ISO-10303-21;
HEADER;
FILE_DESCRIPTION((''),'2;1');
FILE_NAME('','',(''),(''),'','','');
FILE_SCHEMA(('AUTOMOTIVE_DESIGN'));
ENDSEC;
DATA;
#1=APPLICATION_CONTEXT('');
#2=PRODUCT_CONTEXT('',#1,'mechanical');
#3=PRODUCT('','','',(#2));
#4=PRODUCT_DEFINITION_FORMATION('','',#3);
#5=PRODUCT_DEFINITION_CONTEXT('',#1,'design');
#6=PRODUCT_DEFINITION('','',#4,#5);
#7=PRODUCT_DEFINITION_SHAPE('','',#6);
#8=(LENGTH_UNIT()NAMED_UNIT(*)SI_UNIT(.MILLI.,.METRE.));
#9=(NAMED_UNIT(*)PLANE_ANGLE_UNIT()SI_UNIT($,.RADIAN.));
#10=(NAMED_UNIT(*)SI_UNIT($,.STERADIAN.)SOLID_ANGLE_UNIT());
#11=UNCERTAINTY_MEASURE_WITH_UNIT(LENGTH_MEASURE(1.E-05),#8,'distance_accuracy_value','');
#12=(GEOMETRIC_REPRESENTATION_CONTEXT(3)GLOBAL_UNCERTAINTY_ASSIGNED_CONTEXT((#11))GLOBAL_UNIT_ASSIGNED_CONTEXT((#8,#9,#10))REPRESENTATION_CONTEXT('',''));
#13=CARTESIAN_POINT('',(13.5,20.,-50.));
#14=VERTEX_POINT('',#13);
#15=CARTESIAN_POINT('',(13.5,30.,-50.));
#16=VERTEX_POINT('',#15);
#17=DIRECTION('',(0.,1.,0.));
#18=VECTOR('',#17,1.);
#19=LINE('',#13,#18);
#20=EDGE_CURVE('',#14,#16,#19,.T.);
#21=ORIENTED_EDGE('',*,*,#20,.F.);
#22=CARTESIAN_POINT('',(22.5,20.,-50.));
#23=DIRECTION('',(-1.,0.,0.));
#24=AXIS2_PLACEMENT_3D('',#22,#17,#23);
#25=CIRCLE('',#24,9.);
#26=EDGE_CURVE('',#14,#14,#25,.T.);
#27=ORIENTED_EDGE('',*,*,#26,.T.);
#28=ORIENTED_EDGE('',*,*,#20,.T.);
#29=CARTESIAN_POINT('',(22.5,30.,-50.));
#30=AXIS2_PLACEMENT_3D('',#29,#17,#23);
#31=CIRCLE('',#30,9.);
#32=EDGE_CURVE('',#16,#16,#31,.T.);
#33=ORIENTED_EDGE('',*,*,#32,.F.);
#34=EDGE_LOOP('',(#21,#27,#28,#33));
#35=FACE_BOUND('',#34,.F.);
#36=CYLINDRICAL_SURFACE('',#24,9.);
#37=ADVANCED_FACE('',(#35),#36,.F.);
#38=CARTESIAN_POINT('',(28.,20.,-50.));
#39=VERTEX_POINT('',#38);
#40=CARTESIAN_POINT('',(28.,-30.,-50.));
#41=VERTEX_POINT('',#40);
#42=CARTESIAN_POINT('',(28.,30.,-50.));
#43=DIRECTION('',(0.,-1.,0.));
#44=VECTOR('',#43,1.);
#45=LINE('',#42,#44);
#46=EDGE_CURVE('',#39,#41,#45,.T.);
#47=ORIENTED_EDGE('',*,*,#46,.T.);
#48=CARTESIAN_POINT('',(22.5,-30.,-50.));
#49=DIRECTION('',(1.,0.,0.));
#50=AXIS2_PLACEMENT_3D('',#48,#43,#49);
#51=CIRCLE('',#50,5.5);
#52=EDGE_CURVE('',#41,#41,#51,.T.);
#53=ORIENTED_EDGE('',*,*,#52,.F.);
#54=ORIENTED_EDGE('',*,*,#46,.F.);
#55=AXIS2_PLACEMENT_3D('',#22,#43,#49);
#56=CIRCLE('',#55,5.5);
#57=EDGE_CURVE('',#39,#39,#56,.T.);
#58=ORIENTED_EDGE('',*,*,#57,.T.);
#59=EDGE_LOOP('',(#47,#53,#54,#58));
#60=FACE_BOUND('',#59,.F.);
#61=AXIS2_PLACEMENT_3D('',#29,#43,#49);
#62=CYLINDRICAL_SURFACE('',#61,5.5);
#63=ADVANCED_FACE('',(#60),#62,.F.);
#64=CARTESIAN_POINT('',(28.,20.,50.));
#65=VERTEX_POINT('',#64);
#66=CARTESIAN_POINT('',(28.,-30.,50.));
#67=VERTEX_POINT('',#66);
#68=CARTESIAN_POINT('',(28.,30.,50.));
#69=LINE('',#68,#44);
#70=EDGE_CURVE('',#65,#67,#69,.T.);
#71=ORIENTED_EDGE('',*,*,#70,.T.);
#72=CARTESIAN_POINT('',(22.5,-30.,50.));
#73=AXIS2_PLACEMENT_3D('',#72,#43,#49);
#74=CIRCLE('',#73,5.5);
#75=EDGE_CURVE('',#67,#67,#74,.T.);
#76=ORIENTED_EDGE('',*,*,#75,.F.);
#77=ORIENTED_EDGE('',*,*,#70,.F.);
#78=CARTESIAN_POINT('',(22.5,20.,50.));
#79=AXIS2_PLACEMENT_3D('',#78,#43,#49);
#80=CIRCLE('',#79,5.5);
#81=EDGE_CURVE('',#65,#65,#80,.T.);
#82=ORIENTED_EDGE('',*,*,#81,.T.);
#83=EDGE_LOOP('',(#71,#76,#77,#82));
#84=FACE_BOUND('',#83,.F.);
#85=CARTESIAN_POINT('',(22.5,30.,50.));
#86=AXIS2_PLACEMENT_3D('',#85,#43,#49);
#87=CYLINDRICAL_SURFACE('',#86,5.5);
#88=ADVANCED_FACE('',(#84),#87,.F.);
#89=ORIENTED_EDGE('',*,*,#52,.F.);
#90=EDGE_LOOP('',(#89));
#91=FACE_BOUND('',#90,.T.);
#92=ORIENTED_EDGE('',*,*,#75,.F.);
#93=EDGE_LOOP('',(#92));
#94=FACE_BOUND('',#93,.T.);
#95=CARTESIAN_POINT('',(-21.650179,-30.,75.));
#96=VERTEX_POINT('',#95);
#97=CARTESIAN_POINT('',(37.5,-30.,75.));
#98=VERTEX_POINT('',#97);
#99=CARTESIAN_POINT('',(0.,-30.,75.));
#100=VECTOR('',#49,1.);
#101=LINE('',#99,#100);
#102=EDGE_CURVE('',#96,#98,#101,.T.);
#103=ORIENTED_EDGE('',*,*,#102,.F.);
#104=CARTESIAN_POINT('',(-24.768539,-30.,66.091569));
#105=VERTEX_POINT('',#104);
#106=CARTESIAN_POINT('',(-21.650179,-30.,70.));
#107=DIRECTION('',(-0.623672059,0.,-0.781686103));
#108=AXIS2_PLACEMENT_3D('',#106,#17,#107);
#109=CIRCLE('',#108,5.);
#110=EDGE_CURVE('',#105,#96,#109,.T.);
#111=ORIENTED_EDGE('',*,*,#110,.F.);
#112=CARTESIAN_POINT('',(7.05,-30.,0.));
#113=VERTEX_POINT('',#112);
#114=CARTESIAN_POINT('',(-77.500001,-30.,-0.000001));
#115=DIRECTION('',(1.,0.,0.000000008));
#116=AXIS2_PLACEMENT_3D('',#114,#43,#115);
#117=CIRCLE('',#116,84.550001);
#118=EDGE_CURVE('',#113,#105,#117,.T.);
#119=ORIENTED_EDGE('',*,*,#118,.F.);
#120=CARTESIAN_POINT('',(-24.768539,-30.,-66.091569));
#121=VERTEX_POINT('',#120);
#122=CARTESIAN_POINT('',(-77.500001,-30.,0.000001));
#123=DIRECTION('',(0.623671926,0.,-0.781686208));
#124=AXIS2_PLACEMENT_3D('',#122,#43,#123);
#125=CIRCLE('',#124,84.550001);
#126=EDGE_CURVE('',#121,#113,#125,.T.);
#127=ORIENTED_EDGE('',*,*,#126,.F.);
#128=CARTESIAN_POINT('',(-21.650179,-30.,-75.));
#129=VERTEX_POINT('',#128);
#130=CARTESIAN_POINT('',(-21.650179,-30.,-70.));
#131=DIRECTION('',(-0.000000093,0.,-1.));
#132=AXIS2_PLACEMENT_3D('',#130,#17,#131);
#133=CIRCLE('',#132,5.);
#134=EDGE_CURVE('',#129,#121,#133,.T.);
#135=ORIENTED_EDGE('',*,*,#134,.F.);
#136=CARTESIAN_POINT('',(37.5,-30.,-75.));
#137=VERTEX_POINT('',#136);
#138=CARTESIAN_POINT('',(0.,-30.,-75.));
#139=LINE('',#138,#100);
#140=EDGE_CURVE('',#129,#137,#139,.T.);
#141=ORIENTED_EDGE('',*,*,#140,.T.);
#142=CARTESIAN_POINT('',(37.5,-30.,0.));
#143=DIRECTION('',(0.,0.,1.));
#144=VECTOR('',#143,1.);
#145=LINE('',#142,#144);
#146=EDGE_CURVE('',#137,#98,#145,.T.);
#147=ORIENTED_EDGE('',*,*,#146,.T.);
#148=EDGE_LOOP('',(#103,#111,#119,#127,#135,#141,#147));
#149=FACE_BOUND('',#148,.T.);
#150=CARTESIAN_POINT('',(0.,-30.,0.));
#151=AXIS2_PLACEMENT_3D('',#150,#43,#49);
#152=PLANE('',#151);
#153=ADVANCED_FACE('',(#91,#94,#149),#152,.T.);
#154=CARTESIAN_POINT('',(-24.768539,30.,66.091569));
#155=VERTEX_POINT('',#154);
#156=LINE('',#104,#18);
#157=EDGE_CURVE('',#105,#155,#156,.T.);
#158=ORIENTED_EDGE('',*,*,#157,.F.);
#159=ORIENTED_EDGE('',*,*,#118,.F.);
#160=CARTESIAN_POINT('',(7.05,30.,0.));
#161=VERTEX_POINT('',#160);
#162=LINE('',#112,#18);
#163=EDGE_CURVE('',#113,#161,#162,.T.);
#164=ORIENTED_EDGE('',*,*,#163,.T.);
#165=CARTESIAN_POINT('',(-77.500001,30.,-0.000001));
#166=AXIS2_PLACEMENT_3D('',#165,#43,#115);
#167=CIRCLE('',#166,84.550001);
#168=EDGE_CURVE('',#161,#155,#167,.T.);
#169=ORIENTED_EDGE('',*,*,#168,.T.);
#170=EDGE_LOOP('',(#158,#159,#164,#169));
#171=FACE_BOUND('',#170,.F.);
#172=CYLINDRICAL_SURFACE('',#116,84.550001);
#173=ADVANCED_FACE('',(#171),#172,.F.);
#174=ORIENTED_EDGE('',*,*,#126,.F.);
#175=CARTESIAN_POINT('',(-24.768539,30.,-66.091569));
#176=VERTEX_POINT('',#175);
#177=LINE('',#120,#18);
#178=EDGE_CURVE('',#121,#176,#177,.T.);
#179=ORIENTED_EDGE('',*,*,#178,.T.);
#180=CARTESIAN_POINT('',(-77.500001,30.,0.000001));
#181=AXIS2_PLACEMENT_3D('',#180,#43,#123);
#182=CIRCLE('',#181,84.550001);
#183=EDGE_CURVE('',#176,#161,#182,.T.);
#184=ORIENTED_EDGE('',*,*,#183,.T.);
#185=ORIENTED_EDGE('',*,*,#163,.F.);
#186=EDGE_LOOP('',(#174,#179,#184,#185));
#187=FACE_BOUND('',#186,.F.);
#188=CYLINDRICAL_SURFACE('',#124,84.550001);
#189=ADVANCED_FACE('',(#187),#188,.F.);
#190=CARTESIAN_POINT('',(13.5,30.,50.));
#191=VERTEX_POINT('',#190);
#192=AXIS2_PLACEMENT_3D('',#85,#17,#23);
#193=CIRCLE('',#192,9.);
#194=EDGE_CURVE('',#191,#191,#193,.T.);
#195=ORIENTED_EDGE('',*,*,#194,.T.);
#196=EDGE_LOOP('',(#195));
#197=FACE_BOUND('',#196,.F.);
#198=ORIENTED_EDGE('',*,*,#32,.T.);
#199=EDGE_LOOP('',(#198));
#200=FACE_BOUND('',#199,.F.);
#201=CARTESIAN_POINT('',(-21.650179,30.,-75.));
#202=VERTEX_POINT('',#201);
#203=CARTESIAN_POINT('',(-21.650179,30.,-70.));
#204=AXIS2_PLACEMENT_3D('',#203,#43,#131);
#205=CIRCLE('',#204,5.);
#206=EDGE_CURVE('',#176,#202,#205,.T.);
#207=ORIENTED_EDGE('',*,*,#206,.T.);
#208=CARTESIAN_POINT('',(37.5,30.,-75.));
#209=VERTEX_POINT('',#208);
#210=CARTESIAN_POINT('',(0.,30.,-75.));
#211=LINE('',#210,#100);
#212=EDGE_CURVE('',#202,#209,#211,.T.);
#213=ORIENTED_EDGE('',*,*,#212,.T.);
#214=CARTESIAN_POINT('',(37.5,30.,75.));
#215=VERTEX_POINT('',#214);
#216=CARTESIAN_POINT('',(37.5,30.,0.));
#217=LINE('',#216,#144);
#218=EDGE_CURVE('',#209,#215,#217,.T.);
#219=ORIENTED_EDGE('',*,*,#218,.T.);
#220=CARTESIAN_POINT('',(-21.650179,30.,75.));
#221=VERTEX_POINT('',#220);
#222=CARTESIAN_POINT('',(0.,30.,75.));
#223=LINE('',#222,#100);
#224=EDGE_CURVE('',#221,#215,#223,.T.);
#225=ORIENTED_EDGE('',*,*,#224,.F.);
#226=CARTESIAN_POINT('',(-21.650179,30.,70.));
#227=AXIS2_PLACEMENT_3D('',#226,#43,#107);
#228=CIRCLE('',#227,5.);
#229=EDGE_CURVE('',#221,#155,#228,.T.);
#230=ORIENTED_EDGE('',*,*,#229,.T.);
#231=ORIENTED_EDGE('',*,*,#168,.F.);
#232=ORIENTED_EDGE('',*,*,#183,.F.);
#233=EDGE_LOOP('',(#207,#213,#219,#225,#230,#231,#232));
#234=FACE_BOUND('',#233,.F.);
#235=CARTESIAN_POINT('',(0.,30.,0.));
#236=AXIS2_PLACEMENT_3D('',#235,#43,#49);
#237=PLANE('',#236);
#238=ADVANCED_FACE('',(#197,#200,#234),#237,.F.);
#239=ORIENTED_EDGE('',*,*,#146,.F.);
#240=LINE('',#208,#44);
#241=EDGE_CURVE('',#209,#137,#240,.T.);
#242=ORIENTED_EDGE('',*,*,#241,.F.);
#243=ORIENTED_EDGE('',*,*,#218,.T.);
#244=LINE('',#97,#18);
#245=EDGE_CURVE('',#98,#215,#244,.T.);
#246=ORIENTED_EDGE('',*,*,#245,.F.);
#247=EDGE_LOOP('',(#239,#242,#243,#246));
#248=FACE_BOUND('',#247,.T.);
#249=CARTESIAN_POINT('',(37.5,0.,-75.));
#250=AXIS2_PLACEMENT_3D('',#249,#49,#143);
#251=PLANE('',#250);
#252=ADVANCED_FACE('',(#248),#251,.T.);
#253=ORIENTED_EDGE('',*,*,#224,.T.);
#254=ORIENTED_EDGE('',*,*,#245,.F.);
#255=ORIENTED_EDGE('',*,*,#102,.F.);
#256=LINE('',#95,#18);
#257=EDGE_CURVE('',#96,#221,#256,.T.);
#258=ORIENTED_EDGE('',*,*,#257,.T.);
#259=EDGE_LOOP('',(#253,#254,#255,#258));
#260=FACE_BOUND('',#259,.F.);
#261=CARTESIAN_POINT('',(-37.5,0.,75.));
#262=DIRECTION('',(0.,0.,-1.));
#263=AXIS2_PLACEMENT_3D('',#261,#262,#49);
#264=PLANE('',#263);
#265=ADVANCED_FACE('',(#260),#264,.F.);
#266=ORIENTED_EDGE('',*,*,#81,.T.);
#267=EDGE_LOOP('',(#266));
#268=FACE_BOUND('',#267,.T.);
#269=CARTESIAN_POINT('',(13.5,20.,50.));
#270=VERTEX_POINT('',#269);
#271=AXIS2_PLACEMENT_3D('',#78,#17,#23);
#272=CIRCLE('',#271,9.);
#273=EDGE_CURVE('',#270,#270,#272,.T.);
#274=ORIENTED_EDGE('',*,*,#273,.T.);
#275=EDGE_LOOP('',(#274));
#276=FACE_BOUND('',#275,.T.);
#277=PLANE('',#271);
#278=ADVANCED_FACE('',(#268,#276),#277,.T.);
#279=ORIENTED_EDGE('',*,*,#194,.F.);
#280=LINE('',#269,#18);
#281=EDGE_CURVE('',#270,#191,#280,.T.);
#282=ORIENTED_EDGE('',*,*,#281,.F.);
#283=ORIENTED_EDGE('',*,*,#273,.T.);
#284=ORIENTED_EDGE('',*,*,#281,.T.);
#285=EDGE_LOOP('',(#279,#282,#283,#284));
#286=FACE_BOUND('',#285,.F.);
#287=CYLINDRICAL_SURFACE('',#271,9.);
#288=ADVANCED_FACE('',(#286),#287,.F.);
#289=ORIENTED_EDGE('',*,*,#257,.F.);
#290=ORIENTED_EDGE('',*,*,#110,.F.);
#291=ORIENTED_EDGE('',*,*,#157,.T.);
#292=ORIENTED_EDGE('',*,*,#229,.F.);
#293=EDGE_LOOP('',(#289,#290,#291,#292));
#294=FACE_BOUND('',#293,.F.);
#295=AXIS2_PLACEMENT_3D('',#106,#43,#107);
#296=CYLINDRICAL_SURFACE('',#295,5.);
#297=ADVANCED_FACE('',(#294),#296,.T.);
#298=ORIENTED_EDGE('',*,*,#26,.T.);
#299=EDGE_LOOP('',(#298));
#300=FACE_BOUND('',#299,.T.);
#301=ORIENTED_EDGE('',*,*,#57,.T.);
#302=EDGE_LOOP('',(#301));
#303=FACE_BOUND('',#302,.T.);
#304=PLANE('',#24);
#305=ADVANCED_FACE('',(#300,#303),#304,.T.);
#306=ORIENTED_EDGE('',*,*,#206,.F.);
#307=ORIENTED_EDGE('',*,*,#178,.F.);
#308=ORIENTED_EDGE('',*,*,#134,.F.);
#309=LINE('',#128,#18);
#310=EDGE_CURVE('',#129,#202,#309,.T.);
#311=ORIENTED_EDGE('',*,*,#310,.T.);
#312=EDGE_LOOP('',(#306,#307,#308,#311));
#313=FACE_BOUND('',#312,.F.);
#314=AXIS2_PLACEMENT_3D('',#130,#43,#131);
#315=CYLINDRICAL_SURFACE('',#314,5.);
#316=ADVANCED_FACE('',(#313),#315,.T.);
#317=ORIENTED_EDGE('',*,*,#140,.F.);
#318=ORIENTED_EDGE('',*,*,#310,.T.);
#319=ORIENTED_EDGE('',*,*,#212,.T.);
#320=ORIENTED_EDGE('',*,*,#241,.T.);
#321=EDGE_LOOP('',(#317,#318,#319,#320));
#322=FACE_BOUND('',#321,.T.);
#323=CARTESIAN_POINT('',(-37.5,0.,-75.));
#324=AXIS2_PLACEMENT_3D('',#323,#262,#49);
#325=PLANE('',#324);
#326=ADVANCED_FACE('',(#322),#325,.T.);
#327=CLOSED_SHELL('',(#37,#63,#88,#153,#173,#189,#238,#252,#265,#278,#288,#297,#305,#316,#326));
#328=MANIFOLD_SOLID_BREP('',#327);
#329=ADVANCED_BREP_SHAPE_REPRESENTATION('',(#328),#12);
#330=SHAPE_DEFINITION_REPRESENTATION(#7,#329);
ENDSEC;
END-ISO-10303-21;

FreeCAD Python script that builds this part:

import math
import FreeCAD as App
import Part
import Sketcher

V = App.Vector
Q = App.Units.Quantity

doc = App.newDocument("Part")
body = doc.addObject("PartDesign::Body", "Body")

sketch1 = doc.addObject("Sketcher::SketchObject", "Sketch")
body.addObject(sketch1)
sketch1.AttachmentSupport = (doc.XZ_Plane, [""])
sketch1.MapMode = "FlatFace"
sketch1.addGeometry([
    Part.LineSegment(V(-38, 75, 0), V(-38, -75, 0)),
    Part.LineSegment(V(-38, -75, 0), V(38, -75, 0)),
    Part.LineSegment(V(38, -75, 0), V(38, 75, 0)),
    Part.LineSegment(V(38, 75, 0), V(-38, 75, 0)),
], False)
sketch1.addConstraint([
    Sketcher.Constraint("Coincident", 0, 2, 1, 1),
    Sketcher.Constraint("Coincident", 1, 2, 2, 1),
    Sketcher.Constraint("Coincident", 2, 2, 3, 1),
    Sketcher.Constraint("Coincident", 3, 2, 0, 1),
    Sketcher.Constraint("Vertical", 0),
    Sketcher.Constraint("Horizontal", 1),
    Sketcher.Constraint("Vertical", 2),
    Sketcher.Constraint("Horizontal", 3),
    Sketcher.Constraint("Symmetric", 0, 2, 2, 2, -1, 1),
    Sketcher.Constraint("DistanceX", 1, 1, 1, 2, Q("75 mm")),
    Sketcher.Constraint("DistanceY", 0, 2, 0, 1, Q("150 mm")),
])
pad1 = doc.addObject("PartDesign::Pad", "Pad")
body.addObject(pad1)
pad1.Profile = sketch1
pad1.Length = 60
pad1.Midplane = True

sketch2 = doc.addObject("Sketcher::SketchObject", "Sketch001")
body.addObject(sketch2)
sketch2.AttachmentSupport = (doc.XZ_Plane, [""])
sketch2.MapMode = "FlatFace"
sketch2.AttachmentOffset = App.Placement(V(0, 0, 30), App.Rotation())
sketch2.addGeometry([
    Part.ArcOfCircle(Part.Circle(V(-77.5, 0, 0), V(0, 0, 1), 84.6), math.radians(-51), math.radians(0)),
    Part.ArcOfCircle(Part.Circle(V(-77.5, 0, 0), V(0, 0, 1), 84.6), math.radians(0), math.radians(51)),
    Part.ArcOfCircle(Part.Circle(V(-21.7, 70, 0), V(0, 0, 1), 5), math.radians(90), math.radians(231)),
    Part.LineSegment(V(-21.7, 75, 0), V(-37.5, 75, 0)),
    Part.LineSegment(V(-37.5, 75, 0), V(-37.5, 74.5, 0)),
    Part.ArcOfCircle(Part.Circle(V(-77.5, 0, 0), V(0, 0, 1), 84.5), math.radians(62), math.radians(298)),
    Part.LineSegment(V(-37.5, -74.5, 0), V(-37.5, -75, 0)),
    Part.LineSegment(V(-37.5, -75, 0), V(-21.7, -75, 0)),
    Part.ArcOfCircle(Part.Circle(V(-21.7, -70, 0), V(0, 0, 1), 5), math.radians(129), math.radians(270)),
], False)
sketch2.addConstraint([
    Sketcher.Constraint("Tangent", 0, 2, 1, 1),
    Sketcher.Constraint("Tangent", 1, 2, 2, 2),
    Sketcher.Constraint("Tangent", 2, 1, 3, 1),
    Sketcher.Constraint("Coincident", 3, 2, 4, 1),
    Sketcher.Constraint("Coincident", 4, 2, 5, 1),
    Sketcher.Constraint("Coincident", 5, 2, 6, 1),
    Sketcher.Constraint("Coincident", 6, 2, 7, 1),
    Sketcher.Constraint("Tangent", 7, 2, 8, 2),
    Sketcher.Constraint("Tangent", 8, 1, 0, 1),
    Sketcher.Constraint("Horizontal", 3),
    Sketcher.Constraint("Vertical", 4),
    Sketcher.Constraint("Vertical", 6),
    Sketcher.Constraint("Horizontal", 7),
    Sketcher.Constraint("Coincident", 5, 3, 0, 3),
    Sketcher.Constraint("Equal", 0, 1),
    Sketcher.Constraint("Equal", 1, 5),
    Sketcher.Constraint("Equal", 2, 8),
    Sketcher.Constraint("Symmetric", 2, 3, 8, 3, -1),
    Sketcher.Constraint("PointOnObject", 0, 2, -1),
    Sketcher.Constraint("Vertical", 4, 2, 5, 2),
    Sketcher.Constraint("Radius", 2, Q("5 mm")),
    Sketcher.Constraint("Radius", 0, Q("84.550001 mm")),
    Sketcher.Constraint("DistanceY", -1, 1, 2, 3, Q("70 mm")),
    Sketcher.Constraint("DistanceX", 0, 3, 3, 2, Q("40.000001 mm")),
    Sketcher.Constraint("DistanceX", 0, 3, -1, 1, Q("77.500001 mm")),
])
pocket1 = doc.addObject("PartDesign::Pocket", "Pocket")
body.addObject(pocket1)
pocket1.Profile = sketch2
pocket1.Type = "ThroughAll"

sketch3 = doc.addObject("Sketcher::SketchObject", "Sketch002")
body.addObject(sketch3)
sketch3.AttachmentSupport = (doc.XZ_Plane, [""])
sketch3.MapMode = "FlatFace"
sketch3.AttachmentOffset = App.Placement(V(0, 0, -30), App.Rotation())
sketch3.addGeometry([
    Part.Circle(V(22, 50, 0), V(0, 0, 1), 6),
    Part.Circle(V(22, -50, 0), V(0, 0, 1), 6),
], False)
sketch3.addConstraint([
    Sketcher.Constraint("Equal", 0, 1),
    Sketcher.Constraint("Symmetric", 0, 3, 1, 3, -1),
    Sketcher.Constraint("Diameter", 0, Q("11 mm")),
    Sketcher.Constraint("DistanceY", -1, 1, 0, 3, Q("50 mm")),
    Sketcher.Constraint("DistanceX", -1, 1, 0, 3, Q("22.5 mm")),
])
doc.recompute()
hole = doc.addObject("PartDesign::Hole", "Hole")
body.addObject(hole)
hole.Profile = sketch3
hole.ThreadType = "None"
hole.Diameter = 11
hole.DepthType = "ThroughAll"
hole.HoleCutType = "Counterbore"
hole.HoleCutDiameter = 18
hole.HoleCutDepth = 10
hole.Reversed = True

doc.recompute()
